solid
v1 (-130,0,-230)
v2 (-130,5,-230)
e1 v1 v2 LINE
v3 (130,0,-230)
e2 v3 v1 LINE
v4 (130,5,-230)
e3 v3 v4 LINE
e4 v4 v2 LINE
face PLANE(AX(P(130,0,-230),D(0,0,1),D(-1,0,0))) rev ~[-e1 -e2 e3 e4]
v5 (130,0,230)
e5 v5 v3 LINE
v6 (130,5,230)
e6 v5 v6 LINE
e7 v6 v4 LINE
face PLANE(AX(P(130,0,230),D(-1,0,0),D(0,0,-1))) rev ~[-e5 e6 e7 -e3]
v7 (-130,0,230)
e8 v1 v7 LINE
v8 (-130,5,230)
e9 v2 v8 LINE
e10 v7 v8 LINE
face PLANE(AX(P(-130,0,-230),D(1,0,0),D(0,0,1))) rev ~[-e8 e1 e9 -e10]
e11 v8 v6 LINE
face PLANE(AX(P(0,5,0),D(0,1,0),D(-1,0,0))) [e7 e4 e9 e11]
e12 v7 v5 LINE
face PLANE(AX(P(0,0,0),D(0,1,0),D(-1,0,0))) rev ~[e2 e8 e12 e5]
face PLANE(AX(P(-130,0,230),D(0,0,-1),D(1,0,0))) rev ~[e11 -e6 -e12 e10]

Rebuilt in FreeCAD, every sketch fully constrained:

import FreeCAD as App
import Part
import Sketcher
from FreeCAD import Vector

doc = App.newDocument("Part")
body = doc.addObject("PartDesign::Body", "Body")

sketch1 = doc.addObject("Sketcher::SketchObject", "Sketch")
body.addObject(sketch1)
sketch1.AttachmentSupport = (doc.XZ_Plane, [""])
sketch1.MapMode = "FlatFace"
sketch1.addGeometry([
    Part.LineSegment(Vector(-130, -230, 0), Vector(-130, 230, 0)),
    Part.LineSegment(Vector(-130, 230, 0), Vector(130, 230, 0)),
    Part.LineSegment(Vector(130, 230, 0), Vector(130, -230, 0)),
    Part.LineSegment(Vector(130, -230, 0), Vector(-130, -230, 0)),
], False)
sketch1.addConstraint([
    Sketcher.Constraint("Coincident", 0, 2, 1, 1),
    Sketcher.Constraint("Coincident", 1, 2, 2, 1),
    Sketcher.Constraint("Coincident", 2, 2, 3, 1),
    Sketcher.Constraint("Coincident", 3, 2, 0, 1),
    Sketcher.Constraint("Vertical", 0),
    Sketcher.Constraint("Horizontal", 1),
    Sketcher.Constraint("Vertical", 2),
    Sketcher.Constraint("Horizontal", 3),
    Sketcher.Constraint("Symmetric", 0, 2, 2, 2, -1, 1),
    Sketcher.Constraint("DistanceX", 1, 1, 1, 2, 260.0),
    Sketcher.Constraint("DistanceY", 0, 1, 0, 2, 460.0),
])
pad1 = doc.addObject("PartDesign::Pad", "Pad")
body.addObject(pad1)
pad1.Profile = sketch1
pad1.Length = 5
pad1.Reversed = True

doc.recompute()
